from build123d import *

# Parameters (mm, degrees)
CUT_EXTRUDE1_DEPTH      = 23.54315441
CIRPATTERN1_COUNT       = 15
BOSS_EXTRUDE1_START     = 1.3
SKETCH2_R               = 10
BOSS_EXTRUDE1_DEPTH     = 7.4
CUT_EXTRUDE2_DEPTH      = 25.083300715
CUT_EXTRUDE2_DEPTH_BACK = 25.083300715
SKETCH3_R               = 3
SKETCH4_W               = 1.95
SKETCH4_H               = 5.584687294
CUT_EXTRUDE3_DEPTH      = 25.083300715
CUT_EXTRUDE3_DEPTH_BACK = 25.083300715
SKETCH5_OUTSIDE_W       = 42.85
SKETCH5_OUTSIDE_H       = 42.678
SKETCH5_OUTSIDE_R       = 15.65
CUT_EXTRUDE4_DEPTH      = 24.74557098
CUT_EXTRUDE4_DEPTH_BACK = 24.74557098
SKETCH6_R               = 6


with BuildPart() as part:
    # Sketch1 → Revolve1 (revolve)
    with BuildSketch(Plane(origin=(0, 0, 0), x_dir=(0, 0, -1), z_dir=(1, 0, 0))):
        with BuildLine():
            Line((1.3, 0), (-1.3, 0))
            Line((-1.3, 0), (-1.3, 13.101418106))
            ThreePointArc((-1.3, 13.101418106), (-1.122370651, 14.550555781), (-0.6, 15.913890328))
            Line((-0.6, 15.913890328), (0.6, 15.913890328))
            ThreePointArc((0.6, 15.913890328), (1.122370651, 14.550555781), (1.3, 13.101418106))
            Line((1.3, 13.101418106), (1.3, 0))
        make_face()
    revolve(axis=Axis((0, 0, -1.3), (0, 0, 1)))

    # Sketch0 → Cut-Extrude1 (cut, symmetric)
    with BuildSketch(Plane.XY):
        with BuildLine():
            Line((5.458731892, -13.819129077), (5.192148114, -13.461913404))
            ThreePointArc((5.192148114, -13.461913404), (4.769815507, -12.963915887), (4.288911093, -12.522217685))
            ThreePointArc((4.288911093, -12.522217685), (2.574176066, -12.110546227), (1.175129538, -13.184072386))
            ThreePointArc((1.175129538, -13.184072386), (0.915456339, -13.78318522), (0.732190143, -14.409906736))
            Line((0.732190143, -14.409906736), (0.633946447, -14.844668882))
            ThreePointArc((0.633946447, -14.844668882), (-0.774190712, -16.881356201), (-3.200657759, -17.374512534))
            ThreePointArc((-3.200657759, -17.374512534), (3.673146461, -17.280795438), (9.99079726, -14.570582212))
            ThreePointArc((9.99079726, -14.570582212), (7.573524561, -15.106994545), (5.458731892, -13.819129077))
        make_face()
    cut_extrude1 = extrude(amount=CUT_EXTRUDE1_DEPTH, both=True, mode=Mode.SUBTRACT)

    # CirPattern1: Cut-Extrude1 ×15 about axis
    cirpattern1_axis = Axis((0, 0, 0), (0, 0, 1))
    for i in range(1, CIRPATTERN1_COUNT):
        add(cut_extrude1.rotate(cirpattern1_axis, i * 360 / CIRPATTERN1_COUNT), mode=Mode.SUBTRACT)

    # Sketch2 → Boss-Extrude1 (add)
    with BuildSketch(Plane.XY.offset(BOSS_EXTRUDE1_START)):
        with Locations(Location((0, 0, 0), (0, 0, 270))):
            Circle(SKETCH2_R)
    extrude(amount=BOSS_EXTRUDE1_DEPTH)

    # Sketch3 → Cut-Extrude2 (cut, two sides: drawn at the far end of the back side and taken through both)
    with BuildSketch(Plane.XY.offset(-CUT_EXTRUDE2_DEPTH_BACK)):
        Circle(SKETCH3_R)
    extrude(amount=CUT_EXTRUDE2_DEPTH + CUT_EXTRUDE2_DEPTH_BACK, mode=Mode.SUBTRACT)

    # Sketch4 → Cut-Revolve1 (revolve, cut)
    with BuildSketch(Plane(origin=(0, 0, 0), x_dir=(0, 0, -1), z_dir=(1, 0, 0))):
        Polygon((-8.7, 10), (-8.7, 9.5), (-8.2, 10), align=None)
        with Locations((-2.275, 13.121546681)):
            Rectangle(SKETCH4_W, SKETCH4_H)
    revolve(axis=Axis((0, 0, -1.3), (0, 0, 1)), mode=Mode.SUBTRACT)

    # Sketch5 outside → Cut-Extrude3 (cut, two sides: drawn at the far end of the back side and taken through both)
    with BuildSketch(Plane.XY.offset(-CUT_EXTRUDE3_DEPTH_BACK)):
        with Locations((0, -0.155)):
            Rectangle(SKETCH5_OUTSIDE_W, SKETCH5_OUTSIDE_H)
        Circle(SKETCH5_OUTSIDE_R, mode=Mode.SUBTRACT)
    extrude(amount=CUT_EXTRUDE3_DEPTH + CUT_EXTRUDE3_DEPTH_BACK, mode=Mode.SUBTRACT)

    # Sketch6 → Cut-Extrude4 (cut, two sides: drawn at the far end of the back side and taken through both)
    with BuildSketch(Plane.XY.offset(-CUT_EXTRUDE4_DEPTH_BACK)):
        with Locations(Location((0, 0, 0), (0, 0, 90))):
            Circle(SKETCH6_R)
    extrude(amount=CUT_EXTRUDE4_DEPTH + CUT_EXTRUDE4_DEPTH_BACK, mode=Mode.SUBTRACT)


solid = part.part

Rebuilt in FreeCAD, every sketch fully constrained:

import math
import FreeCAD as App
import Part
import Sketcher


def add_polygon(sketch, points):
    """Adds a closed chain of lines whose ends are joined by coincident constraints."""
    first, n = sketch.GeometryCount, len(points)
    for a, b in zip(points, points[1:] + points[:1]):
        sketch.addGeometry(Part.LineSegment(App.Vector(*a, 0), App.Vector(*b, 0)), False)
    for i in range(n):
        sketch.addConstraint(Sketcher.Constraint("Coincident", first + i, 2, first + (i + 1) % n, 1))

doc = App.newDocument("Part")
body = doc.addObject("PartDesign::Body", "Body")

# Sketch on YZ plane
sketch1 = body.newObject("Sketcher::SketchObject", "Sketch")
sketch1.AttachmentSupport = (doc.getObject("YZ_Plane"), [""])
sketch1.MapMode = "FlatFace"
sketch1.addGeometry([
    Part.LineSegment(App.Vector(0, 1.3, 0), App.Vector(0, -1.3, 0)),  # 0
    Part.LineSegment(App.Vector(0, -1.3, 0), App.Vector(13.101418, -1.3, 0)),  # 1
    Part.ArcOfCircle(Part.Circle(App.Vector(13.101418, 4.7, 0), App.Vector(0, 0, 1), 6), math.radians(-90), math.radians(-62.047113)),  # 2
    Part.LineSegment(App.Vector(15.91389, -0.6, 0), App.Vector(15.91389, 0.6, 0)),  # 3
    Part.ArcOfCircle(Part.Circle(App.Vector(13.101418, -4.7, 0), App.Vector(0, 0, 1), 6), math.radians(62.047113), math.radians(90)),  # 4
    Part.LineSegment(App.Vector(13.101418, 1.3, 0), App.Vector(0, 1.3, 0)),  # 5
], False)
sketch1.addConstraint([
    Sketcher.Constraint("Coincident", 0, 2, 1, 1),
    Sketcher.Constraint("Tangent", 1, 2, 2, 1),
    Sketcher.Constraint("Coincident", 2, 2, 3, 1),
    Sketcher.Constraint("Coincident", 3, 2, 4, 1),
    Sketcher.Constraint("Tangent", 4, 2, 5, 1),
    Sketcher.Constraint("Coincident", 5, 2, 0, 1),
    Sketcher.Constraint("Vertical", 0),
    Sketcher.Constraint("Horizontal", 1),
    Sketcher.Constraint("Vertical", 3),
    Sketcher.Constraint("Horizontal", 5),
    Sketcher.Constraint("Equal", 2, 4),
    Sketcher.Constraint("Symmetric", 0, 2, 5, 2, -1, 1),
    Sketcher.Constraint("Vertical", 2, 3, 4, 3),
    Sketcher.Constraint("Radius", 2, 6.0),
    Sketcher.Constraint("DistanceY", 0, 2, 0, 1, 2.6),
    Sketcher.Constraint("DistanceY", 3, 1, 3, 2, 1.2),
    Sketcher.Constraint("DistanceX", 1, 1, 1, 2, 13.101418),
])
revolution = body.newObject("PartDesign::Revolution", "Revolution")
revolution.Profile = sketch1
revolution.ReferenceAxis = (sketch1, ["V_Axis"])
revolution.Angle = 360

# Sketch on XY plane
sketch2 = body.newObject("Sketcher::SketchObject", "Sketch001")
sketch2.AttachmentSupport = (doc.getObject("XY_Plane"), [""])
sketch2.MapMode = "FlatFace"
sketch2.addGeometry([
    Part.LineSegment(App.Vector(5.458732, -13.819129, 0), App.Vector(5.192148, -13.461913, 0)),  # 0
    Part.ArcOfCircle(Part.Circle(App.Vector(0.986175, -16.600757, 0), App.Vector(0, 0, 1), 5.2481), math.radians(36.733333), math.radians(51)),  # 1
    Part.ArcOfCircle(Part.Circle(App.Vector(3, -14.11389, 0), App.Vector(0, 0, 1), 2.0481), math.radians(51), math.radians(153)),  # 2
    Part.ArcOfCircle(Part.Circle(App.Vector(5.851221, -15.56666, 0), App.Vector(0, 0, 1), 5.2481), math.radians(153), math.radians(167.266667)),  # 3
    Part.LineSegment(App.Vector(0.73219, -14.409907, 0), App.Vector(0.633946, -14.844669, 0)),  # 4
    Part.ArcOfCircle(Part.Circle(App.Vector(-2.6, -14.11389, 0), App.Vector(0, 0, 1), 3.315486), math.radians(-100.437761), math.radians(-12.733333)),  # 5
    Part.ArcOfCircle(Part.Circle(App.Vector(0, 0, 0), App.Vector(0, 0, 1), 17.666859), math.radians(-100.437761), math.radians(-55.562239)),  # 6
    Part.ArcOfCircle(Part.Circle(App.Vector(8.115855, -11.836165, 0), App.Vector(0, 0, 1), 3.315486), math.radians(-143.266667), math.radians(-55.562239)),  # 7
], False)
sketch2.addConstraint([
    Sketcher.Constraint("Tangent", 0, 2, 1, 1),
    Sketcher.Constraint("Tangent", 1, 2, 2, 1),
    Sketcher.Constraint("Tangent", 2, 2, 3, 1),
    Sketcher.Constraint("Tangent", 3, 2, 4, 1),
    Sketcher.Constraint("Tangent", 4, 2, 5, 2),
    Sketcher.Constraint("Tangent", 5, 1, 6, 1),
    Sketcher.Constraint("Tangent", 6, 2, 7, 2),
    Sketcher.Constraint("Tangent", 7, 1, 0, 1),
    Sketcher.Constraint("Coincident", 6, 3, -1, 1),
    Sketcher.Constraint("Equal", 1, 3),
    Sketcher.Constraint("Equal", 5, 7),
    Sketcher.Constraint("Horizontal", 2, 3, 5, 3),
    Sketcher.Constraint("Equal", 0, 4),
    Sketcher.Constraint("DistanceX", -1, 1, 2, 3, 3.0),
    Sketcher.Constraint("DistanceX", 5, 3, -1, 1, 2.6),
    Sketcher.Constraint("Radius", 1, 5.2481),
    Sketcher.Constraint("Radius", 2, 2.0481),
    Sketcher.Constraint("Radius", 6, 17.666859),
    Sketcher.Constraint("Radius", 5, 3.315486),
    Sketcher.Constraint("DistanceX", -1, 1, 3, 3, 5.851221),
    Sketcher.Constraint("DistanceX", -1, 1, 0, 2, 5.192148),
])
pocket1 = body.newObject("PartDesign::Pocket", "Pocket")
pocket1.Profile = sketch2
pocket1.Length = 47.086309
pocket1.Midplane = True
doc.recompute()

polarpattern = body.newObject("PartDesign::PolarPattern", "PolarPattern")
polarpattern.Originals = [pocket1]
polarpattern.Axis = (doc.getObject("Z_Axis"), [""])
polarpattern.Angle = 360
polarpattern.Occurrences = 15
body.Tip = polarpattern

# Sketch on XY plane
sketch3 = body.newObject("Sketcher::SketchObject", "Sketch002")
sketch3.AttachmentSupport = (doc.getObject("XY_Plane"), [""])
sketch3.MapMode = "FlatFace"
sketch3.AttachmentOffset = App.Placement(App.Vector(0, 0, 1.3), App.Rotation())
sketch3.addGeometry(Part.Circle(App.Vector(0, 0, 0), App.Vector(0, 0, 1), 10), False)
sketch3.addConstraint([
    Sketcher.Constraint("Coincident", 0, 3, -1, 1),
    Sketcher.Constraint("Diameter", 0, 20.0),
])
pad1 = body.newObject("PartDesign::Pad", "Pad")
pad1.Profile = sketch3
pad1.Length = 7.4

# Sketch on XY plane
sketch4 = body.newObject("Sketcher::SketchObject", "Sketch003")
sketch4.AttachmentSupport = (doc.getObject("XY_Plane"), [""])
sketch4.MapMode = "FlatFace"
sketch4.addGeometry(Part.Circle(App.Vector(0, 0, 0), App.Vector(0, 0, 1), 3), False)
sketch4.addConstraint([
    Sketcher.Constraint("Coincident", 0, 3, -1, 1),
    Sketcher.Constraint("Diameter", 0, 6.0),
])
pocket2 = body.newObject("PartDesign::Pocket", "Pocket001")
pocket2.Profile = sketch4
pocket2.Type = "ThroughAll"
pocket2.Midplane = True

# Sketch on YZ plane
sketch5 = body.newObject("Sketcher::SketchObject", "Sketch004")
sketch5.AttachmentSupport = (doc.getObject("YZ_Plane"), [""])
sketch5.MapMode = "FlatFace"
add_polygon(sketch5, [(10, 8.7), (9.5, 8.7), (10, 8.2)])  # lines 0-2
add_polygon(sketch5, [(15.91389, 3.25), (10.329203, 3.25), (10.329203, 1.3), (15.91389, 1.3)])  # lines 3-6
sketch5.addConstraint([
    Sketcher.Constraint("Horizontal", 0),
    Sketcher.Constraint("Vertical", 2),
    Sketcher.Constraint("Horizontal", 3),
    Sketcher.Constraint("Vertical", 4),
    Sketcher.Constraint("Horizontal", 5),
    Sketcher.Constraint("Vertical", 6),
    Sketcher.Constraint("Equal", 0, 2),
    Sketcher.Constraint("DistanceX", 0, 2, 0, 1, 0.5),
    Sketcher.Constraint("DistanceX", -1, 1, 1, 2, 10.0),
    Sketcher.Constraint("DistanceY", 4, 2, 4, 1, 1.95),
    Sketcher.Constraint("DistanceY", -1, 1, 0, 2, 8.7),
    Sketcher.Constraint("DistanceY", -1, 1, 4, 2, 1.3),
    Sketcher.Constraint("DistanceX", 3, 2, 3, 1, 5.584687),
    Sketcher.Constraint("DistanceX", -1, 1, 5, 2, 15.91389),
])
groove = body.newObject("PartDesign::Groove", "Groove")
groove.Profile = sketch5
groove.ReferenceAxis = (sketch5, ["V_Axis"])
groove.Angle = 360

# Sketch on XY plane
sketch6 = body.newObject("Sketcher::SketchObject", "Sketch005")
sketch6.AttachmentSupport = (doc.getObject("XY_Plane"), [""])
sketch6.MapMode = "FlatFace"
add_polygon(sketch6, [(-21.425, 21.184), (-21.425, -21.494), (21.425, -21.494), (21.425, 21.184)])  # lines 0-3
sketch6.addGeometry(Part.Circle(App.Vector(0, 0, 0), App.Vector(0, 0, 1), 15.65), False)  # 4
sketch6.addConstraint([
    Sketcher.Constraint("Vertical", 0),
    Sketcher.Constraint("Horizontal", 1),
    Sketcher.Constraint("Vertical", 2),
    Sketcher.Constraint("Horizontal", 3),
    Sketcher.Constraint("Coincident", 4, 3, -1, 1),
    Sketcher.Constraint("Diameter", 4, 31.3),
    Sketcher.Constraint("DistanceX", 1, 1, 1, 2, 42.85),
    Sketcher.Constraint("DistanceY", 0, 2, 0, 1, 42.678),
    Sketcher.Constraint("DistanceX", 0, 2, -1, 1, 21.425),
    Sketcher.Constraint("DistanceY", 0, 2, -1, 1, 21.494),
])
pocket3 = body.newObject("PartDesign::Pocket", "Pocket002")
pocket3.Profile = sketch6
pocket3.Type = "ThroughAll"
pocket3.Midplane = True

# Sketch on XY plane
sketch7 = body.newObject("Sketcher::SketchObject", "Sketch006")
sketch7.AttachmentSupport = (doc.getObject("XY_Plane"), [""])
sketch7.MapMode = "FlatFace"
sketch7.addGeometry(Part.Circle(App.Vector(0, 0, 0), App.Vector(0, 0, 1), 6), False)
sketch7.addConstraint([
    Sketcher.Constraint("Coincident", 0, 3, -1, 1),
    Sketcher.Constraint("Diameter", 0, 12.0),
])
pocket4 = body.newObject("PartDesign::Pocket", "Pocket003")
pocket4.Profile = sketch7
pocket4.Type = "ThroughAll"
pocket4.Midplane = True

doc.recompute()
